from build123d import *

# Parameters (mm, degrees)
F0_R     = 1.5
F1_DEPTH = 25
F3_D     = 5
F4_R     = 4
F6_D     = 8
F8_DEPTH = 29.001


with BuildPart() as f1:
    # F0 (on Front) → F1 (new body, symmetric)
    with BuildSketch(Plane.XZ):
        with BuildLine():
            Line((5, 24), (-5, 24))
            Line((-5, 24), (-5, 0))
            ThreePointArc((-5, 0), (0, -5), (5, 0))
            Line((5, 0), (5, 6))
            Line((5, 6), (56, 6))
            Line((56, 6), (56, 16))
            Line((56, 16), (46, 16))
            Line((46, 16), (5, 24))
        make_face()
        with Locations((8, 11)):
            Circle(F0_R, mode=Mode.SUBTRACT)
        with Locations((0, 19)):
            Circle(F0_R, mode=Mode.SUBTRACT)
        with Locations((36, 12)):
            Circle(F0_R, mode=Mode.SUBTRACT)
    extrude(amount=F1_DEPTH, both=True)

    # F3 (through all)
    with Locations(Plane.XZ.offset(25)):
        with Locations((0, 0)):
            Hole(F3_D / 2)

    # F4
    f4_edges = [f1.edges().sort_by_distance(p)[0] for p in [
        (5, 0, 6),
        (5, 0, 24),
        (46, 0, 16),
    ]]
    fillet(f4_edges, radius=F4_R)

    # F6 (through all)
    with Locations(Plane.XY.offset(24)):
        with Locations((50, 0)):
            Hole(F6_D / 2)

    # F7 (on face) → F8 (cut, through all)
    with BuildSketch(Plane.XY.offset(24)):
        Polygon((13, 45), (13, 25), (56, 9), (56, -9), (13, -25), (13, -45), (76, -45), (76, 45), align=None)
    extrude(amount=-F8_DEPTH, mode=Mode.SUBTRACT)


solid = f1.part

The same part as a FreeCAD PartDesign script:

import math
import FreeCAD as App
import Part
import Sketcher

V = App.Vector
Q = App.Units.Quantity


def edges_at(feature, points):
    """Names of the edges that pass closest to the given points."""
    edges = feature.Shape.Edges
    near = lambda p: min(range(len(edges)), key=lambda i: edges[i].distToShape(Part.Vertex(*p))[0])
    return sorted({f"Edge{near(p) + 1}" for p in points})

doc = App.newDocument("Part")
body = doc.addObject("PartDesign::Body", "Body")

sketch1 = body.newObject("Sketcher::SketchObject", "Sketch")
sketch1.AttachmentSupport = (doc.getObject("XZ_Plane"), [""])
sketch1.MapMode = "FlatFace"
sketch1.addGeometry(Part.LineSegment(V(5, 24, 0), V(-5, 24, 0)), False)
sketch1.addGeometry(Part.LineSegment(V(-5, 24, 0), V(-5, 0, 0)), False)
sketch1.addGeometry(Part.ArcOfCircle(Part.Circle(V(0, 0, 0), V(0, 0, 1), 5), math.radians(180), math.radians(360)), False)
sketch1.addGeometry(Part.LineSegment(V(5, 0, 0), V(5, 6, 0)), False)
sketch1.addGeometry(Part.LineSegment(V(5, 6, 0), V(56, 6, 0)), False)
sketch1.addGeometry(Part.LineSegment(V(56, 6, 0), V(56, 16, 0)), False)
sketch1.addGeometry(Part.LineSegment(V(56, 16, 0), V(46, 16, 0)), False)
sketch1.addGeometry(Part.LineSegment(V(46, 16, 0), V(5, 24, 0)), False)
sketch1.addGeometry(Part.Circle(V(8, 11, 0), V(0, 0, 1), 1.5), False)
sketch1.addGeometry(Part.Circle(V(36, 12, 0), V(0, 0, 1), 1.5), False)
sketch1.addGeometry(Part.Circle(V(0, 19, 0), V(0, 0, 1), 1.5), False)
sketch1.addConstraint(Sketcher.Constraint("Coincident", 0, 2, 1, 1))
sketch1.addConstraint(Sketcher.Constraint("Tangent", 1, 2, 2, 1))
sketch1.addConstraint(Sketcher.Constraint("Tangent", 2, 2, 3, 1))
sketch1.addConstraint(Sketcher.Constraint("Coincident", 3, 2, 4, 1))
sketch1.addConstraint(Sketcher.Constraint("Coincident", 4, 2, 5, 1))
sketch1.addConstraint(Sketcher.Constraint("Coincident", 5, 2, 6, 1))
sketch1.addConstraint(Sketcher.Constraint("Coincident", 6, 2, 7, 1))
sketch1.addConstraint(Sketcher.Constraint("Coincident", 7, 2, 0, 1))
sketch1.addConstraint(Sketcher.Constraint("Horizontal", 0))
sketch1.addConstraint(Sketcher.Constraint("Vertical", 1))
sketch1.addConstraint(Sketcher.Constraint("Vertical", 3))
sketch1.addConstraint(Sketcher.Constraint("Horizontal", 4))
sketch1.addConstraint(Sketcher.Constraint("Vertical", 5))
sketch1.addConstraint(Sketcher.Constraint("Horizontal", 6))
sketch1.addConstraint(Sketcher.Constraint("Coincident", 2, 3, -1, 1))
sketch1.addConstraint(Sketcher.Constraint("Equal", 8, 9))
sketch1.addConstraint(Sketcher.Constraint("Equal", 9, 10))
sketch1.addConstraint(Sketcher.Constraint("PointOnObject", 10, 3, -2))
sketch1.addConstraint(Sketcher.Constraint("Vertical", 3, 2, 7, 2))
sketch1.addConstraint(Sketcher.Constraint("Equal", 0, 6))
sketch1.addConstraint(Sketcher.Constraint("Equal", 6, 5))
sketch1.addConstraint(Sketcher.Constraint("Diameter", 8, Q("3 mm")))
sketch1.addConstraint(Sketcher.Constraint("Radius", 2, Q("5 mm")))
sketch1.addConstraint(Sketcher.Constraint("DistanceX", 4, 1, 4, 2, Q("51 mm")))
sketch1.addConstraint(Sketcher.Constraint("DistanceY", 1, 2, 1, 1, Q("24 mm")))
sketch1.addConstraint(Sketcher.Constraint("DistanceY", 3, 1, 3, 2, Q("6 mm")))
sketch1.addConstraint(Sketcher.Constraint("DistanceX", -1, 1, 8, 3, Q("8 mm")))
sketch1.addConstraint(Sketcher.Constraint("DistanceY", -1, 1, 8, 3, Q("11 mm")))
sketch1.addConstraint(Sketcher.Constraint("DistanceX", -1, 1, 9, 3, Q("36 mm")))
sketch1.addConstraint(Sketcher.Constraint("DistanceY", -1, 1, 9, 3, Q("12 mm")))
sketch1.addConstraint(Sketcher.Constraint("DistanceY", -1, 1, 10, 3, Q("19 mm")))
pad1 = body.newObject("PartDesign::Pad", "Pad")
pad1.Profile = sketch1
pad1.Length = 50
pad1.Midplane = True

sketch2 = body.newObject("Sketcher::SketchObject", "Sketch001")
sketch2.AttachmentSupport = (doc.getObject("XZ_Plane"), [""])
sketch2.MapMode = "FlatFace"
sketch2.AttachmentOffset = App.Placement(V(0, 0, 25), App.Rotation())
sketch2.addGeometry(Part.Circle(V(0, 0, 0), V(0, 0, 1), 2.5), False)
sketch2.addConstraint(Sketcher.Constraint("Coincident", 0, 3, -1, 1))
sketch2.addConstraint(Sketcher.Constraint("Diameter", 0, Q("5 mm")))
doc.recompute()
hole = body.newObject("PartDesign::Hole", "Hole")
hole.Profile = sketch2
hole.ThreadType = "None"
hole.Diameter = 5
hole.DepthType = "ThroughAll"
doc.recompute()

fillet = body.newObject("PartDesign::Fillet", "Fillet")
fillet.Base = (hole, edges_at(hole, [(5, 0, 6), (5, 0, 24), (46, 0, 16)]))
fillet.Radius = 4

sketch3 = body.newObject("Sketcher::SketchObject", "Sketch002")
sketch3.AttachmentSupport = (doc.getObject("XY_Plane"), [""])
sketch3.MapMode = "FlatFace"
sketch3.AttachmentOffset = App.Placement(V(0, 0, 24), App.Rotation())
sketch3.addGeometry(Part.Circle(V(50, 0, 0), V(0, 0, 1), 4), False)
sketch3.addConstraint(Sketcher.Constraint("PointOnObject", 0, 3, -1))
sketch3.addConstraint(Sketcher.Constraint("Diameter", 0, Q("8 mm")))
sketch3.addConstraint(Sketcher.Constraint("DistanceX", -1, 1, 0, 3, Q("50 mm")))
doc.recompute()
hole2 = body.newObject("PartDesign::Hole", "Hole001")
hole2.Profile = sketch3
hole2.ThreadType = "None"
hole2.Diameter = 8
hole2.DepthType = "ThroughAll"

sketch4 = body.newObject("Sketcher::SketchObject", "Sketch003")
sketch4.AttachmentSupport = (doc.getObject("XY_Plane"), [""])
sketch4.MapMode = "FlatFace"
sketch4.AttachmentOffset = App.Placement(V(0, 0, 24), App.Rotation())
sketch4.addGeometry(Part.LineSegment(V(13, 45, 0), V(13, 25, 0)), False)
sketch4.addGeometry(Part.LineSegment(V(13, 25, 0), V(56, 9, 0)), False)
sketch4.addGeometry(Part.LineSegment(V(56, 9, 0), V(56, -9, 0)), False)
sketch4.addGeometry(Part.LineSegment(V(56, -9, 0), V(13, -25, 0)), False)
sketch4.addGeometry(Part.LineSegment(V(13, -25, 0), V(13, -45, 0)), False)
sketch4.addGeometry(Part.LineSegment(V(13, -45, 0), V(76, -45, 0)), False)
sketch4.addGeometry(Part.LineSegment(V(76, -45, 0), V(76, 45, 0)), False)
sketch4.addGeometry(Part.LineSegment(V(76, 45, 0), V(13, 45, 0)), False)
sketch4.addConstraint(Sketcher.Constraint("Coincident", 0, 2, 1, 1))
sketch4.addConstraint(Sketcher.Constraint("Coincident", 1, 2, 2, 1))
sketch4.addConstraint(Sketcher.Constraint("Coincident", 2, 2, 3, 1))
sketch4.addConstraint(Sketcher.Constraint("Coincident", 3, 2, 4, 1))
sketch4.addConstraint(Sketcher.Constraint("Coincident", 4, 2, 5, 1))
sketch4.addConstraint(Sketcher.Constraint("Coincident", 5, 2, 6, 1))
sketch4.addConstraint(Sketcher.Constraint("Coincident", 6, 2, 7, 1))
sketch4.addConstraint(Sketcher.Constraint("Coincident", 7, 2, 0, 1))
sketch4.addConstraint(Sketcher.Constraint("Vertical", 0))
sketch4.addConstraint(Sketcher.Constraint("Vertical", 2))
sketch4.addConstraint(Sketcher.Constraint("Vertical", 4))
sketch4.addConstraint(Sketcher.Constraint("Horizontal", 5))
sketch4.addConstraint(Sketcher.Constraint("Vertical", 6))
sketch4.addConstraint(Sketcher.Constraint("Horizontal", 7))
sketch4.addConstraint(Sketcher.Constraint("Symmetric", 0, 2, 3, 2, -1))
sketch4.addConstraint(Sketcher.Constraint("Equal", 0, 4))
sketch4.addConstraint(Sketcher.Constraint("Equal", 1, 3))
sketch4.addConstraint(Sketcher.Constraint("DistanceX", 5, 1, 5, 2, Q("63 mm")))
sketch4.addConstraint(Sketcher.Constraint("DistanceY", 0, 2, 0, 1, Q("20 mm")))
sketch4.addConstraint(Sketcher.Constraint("DistanceY", 2, 2, 2, 1, Q("18 mm")))
sketch4.addConstraint(Sketcher.Constraint("DistanceY", 6, 1, 6, 2, Q("90 mm")))
sketch4.addConstraint(Sketcher.Constraint("DistanceX", -1, 1, 0, 2, Q("13 mm")))
sketch4.addConstraint(Sketcher.Constraint("DistanceX", -1, 1, 1, 2, Q("56 mm")))
pocket1 = body.newObject("PartDesign::Pocket", "Pocket")
pocket1.Profile = sketch4
pocket1.Type = "ThroughAll"

doc.recompute()
